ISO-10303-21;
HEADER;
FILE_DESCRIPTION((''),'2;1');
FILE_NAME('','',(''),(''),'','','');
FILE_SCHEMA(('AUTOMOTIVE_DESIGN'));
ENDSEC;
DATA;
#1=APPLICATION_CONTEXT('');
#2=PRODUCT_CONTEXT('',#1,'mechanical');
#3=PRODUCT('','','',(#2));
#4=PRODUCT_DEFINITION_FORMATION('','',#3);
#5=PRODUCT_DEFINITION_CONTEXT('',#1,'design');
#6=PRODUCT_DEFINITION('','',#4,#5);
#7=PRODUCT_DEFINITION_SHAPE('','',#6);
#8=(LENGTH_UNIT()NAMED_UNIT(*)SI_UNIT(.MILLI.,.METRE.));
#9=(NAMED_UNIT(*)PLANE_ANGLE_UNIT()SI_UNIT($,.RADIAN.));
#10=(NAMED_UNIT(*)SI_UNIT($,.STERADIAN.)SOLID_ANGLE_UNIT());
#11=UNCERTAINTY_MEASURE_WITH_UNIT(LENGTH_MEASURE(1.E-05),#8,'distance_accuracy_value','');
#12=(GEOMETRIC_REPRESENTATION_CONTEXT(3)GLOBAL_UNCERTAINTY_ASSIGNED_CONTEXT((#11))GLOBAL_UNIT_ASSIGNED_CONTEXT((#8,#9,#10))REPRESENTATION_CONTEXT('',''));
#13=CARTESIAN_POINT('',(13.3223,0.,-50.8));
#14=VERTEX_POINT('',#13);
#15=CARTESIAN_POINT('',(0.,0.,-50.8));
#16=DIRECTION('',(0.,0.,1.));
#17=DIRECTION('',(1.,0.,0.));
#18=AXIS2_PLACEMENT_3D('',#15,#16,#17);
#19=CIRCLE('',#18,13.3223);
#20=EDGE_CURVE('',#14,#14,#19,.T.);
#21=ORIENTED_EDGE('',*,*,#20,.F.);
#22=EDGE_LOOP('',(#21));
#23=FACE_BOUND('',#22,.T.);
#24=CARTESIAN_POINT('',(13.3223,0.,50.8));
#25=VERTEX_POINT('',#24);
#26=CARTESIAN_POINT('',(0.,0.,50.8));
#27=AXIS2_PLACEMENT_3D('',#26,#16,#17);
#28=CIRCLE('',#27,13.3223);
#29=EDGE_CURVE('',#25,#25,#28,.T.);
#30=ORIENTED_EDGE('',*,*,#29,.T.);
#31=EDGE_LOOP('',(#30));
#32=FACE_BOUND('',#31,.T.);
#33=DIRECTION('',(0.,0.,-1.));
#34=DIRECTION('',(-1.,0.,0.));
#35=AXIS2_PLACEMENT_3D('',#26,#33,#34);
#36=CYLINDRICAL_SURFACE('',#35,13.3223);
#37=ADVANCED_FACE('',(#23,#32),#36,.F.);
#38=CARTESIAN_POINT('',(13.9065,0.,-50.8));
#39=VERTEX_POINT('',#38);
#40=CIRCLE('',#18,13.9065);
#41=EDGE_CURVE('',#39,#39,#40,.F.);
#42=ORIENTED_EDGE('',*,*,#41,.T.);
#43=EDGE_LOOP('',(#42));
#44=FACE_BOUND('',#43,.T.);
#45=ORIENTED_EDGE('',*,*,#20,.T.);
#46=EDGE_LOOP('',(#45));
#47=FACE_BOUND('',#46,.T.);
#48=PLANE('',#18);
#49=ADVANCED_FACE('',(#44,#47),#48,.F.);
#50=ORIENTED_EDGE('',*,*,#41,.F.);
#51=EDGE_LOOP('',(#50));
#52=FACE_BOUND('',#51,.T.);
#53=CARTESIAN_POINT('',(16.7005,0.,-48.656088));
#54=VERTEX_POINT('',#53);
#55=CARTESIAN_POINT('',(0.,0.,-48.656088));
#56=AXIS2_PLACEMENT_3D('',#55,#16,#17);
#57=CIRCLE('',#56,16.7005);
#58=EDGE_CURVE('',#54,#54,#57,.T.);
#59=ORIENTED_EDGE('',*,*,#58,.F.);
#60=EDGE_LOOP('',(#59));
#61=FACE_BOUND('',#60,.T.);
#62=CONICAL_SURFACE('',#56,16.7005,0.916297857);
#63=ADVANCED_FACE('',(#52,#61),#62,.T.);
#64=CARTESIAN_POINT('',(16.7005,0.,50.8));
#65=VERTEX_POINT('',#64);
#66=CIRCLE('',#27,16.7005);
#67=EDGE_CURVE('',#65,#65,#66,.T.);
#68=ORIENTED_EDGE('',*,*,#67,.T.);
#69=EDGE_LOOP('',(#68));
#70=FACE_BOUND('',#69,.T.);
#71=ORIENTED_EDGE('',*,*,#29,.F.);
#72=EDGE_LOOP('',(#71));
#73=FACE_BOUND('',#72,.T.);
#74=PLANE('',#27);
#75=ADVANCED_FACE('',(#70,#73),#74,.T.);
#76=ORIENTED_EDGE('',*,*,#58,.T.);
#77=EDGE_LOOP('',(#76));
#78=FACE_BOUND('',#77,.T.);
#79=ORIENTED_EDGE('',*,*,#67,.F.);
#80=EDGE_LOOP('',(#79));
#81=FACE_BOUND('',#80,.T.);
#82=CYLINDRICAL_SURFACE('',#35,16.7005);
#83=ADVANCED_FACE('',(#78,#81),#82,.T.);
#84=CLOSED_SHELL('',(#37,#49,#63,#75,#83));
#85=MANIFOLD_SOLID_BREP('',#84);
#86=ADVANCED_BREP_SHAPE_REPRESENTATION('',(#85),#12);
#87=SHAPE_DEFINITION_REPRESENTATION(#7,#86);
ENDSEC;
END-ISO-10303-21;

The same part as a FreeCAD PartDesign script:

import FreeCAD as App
import Part
import Sketcher

V = App.Vector
Q = App.Units.Quantity


def edges_at(feature, points):
    """Names of the edges that pass closest to the given points."""
    edges = feature.Shape.Edges
    near = lambda p: min(range(len(edges)), key=lambda i: edges[i].distToShape(Part.Vertex(*p))[0])
    return sorted({f"Edge{near(p) + 1}" for p in points})

doc = App.newDocument("Part")
params = doc.addObject("Spreadsheet::Sheet", "Params")
for row, (alias, value) in enumerate([
    ("sketch1_diameter", "1.315 in"),
    ("sketch1_diameter2", "1.049 in"),
    ("pad1_length", "4 in"),
    ("chamfer_size", "0.11 in"),
    ("chamfer_size2", "2.143912 mm"),
], start=1):
    params.set(f"A{row}", alias)
    params.set(f"B{row}", "=" + value)
    params.setAlias(f"B{row}", alias)

body = doc.addObject("PartDesign::Body", "Body")

sketch1 = body.newObject("Sketcher::SketchObject", "Sketch")
sketch1.AttachmentSupport = (doc.getObject("XY_Plane"), [""])
sketch1.MapMode = "FlatFace"
sketch1.addGeometry([
    Part.Circle(V(0, 0, 0), V(0, 0, 1), 17),
    Part.Circle(V(0, 0, 0), V(0, 0, 1), 13),
], False)
sketch1.addConstraint([
    Sketcher.Constraint("Coincident", 0, 3, -1, 1),
    Sketcher.Constraint("Coincident", 1, 3, -1, 1),
    Sketcher.Constraint("Diameter", 0, Q("1.315 in")),
    Sketcher.Constraint("Diameter", 1, Q("1.049 in")),
])
sketch1.setExpression("Constraints[2]", "Params.sketch1_diameter")
sketch1.setExpression("Constraints[3]", "Params.sketch1_diameter2")
pad1 = body.newObject("PartDesign::Pad", "Pad")
pad1.Profile = sketch1
pad1.setExpression("Length", "Params.pad1_length")
pad1.Midplane = True
doc.recompute()

chamfer = body.newObject("PartDesign::Chamfer", "Chamfer")
chamfer.Base = (pad1, edges_at(pad1, [(-16.701, 0, -50.8)]))
chamfer.ChamferType = "Two distances"
chamfer.setExpression("Size", "Params.chamfer_size")
chamfer.setExpression("Size2", "Params.chamfer_size2")
chamfer.FlipDirection = True

doc.recompute()
